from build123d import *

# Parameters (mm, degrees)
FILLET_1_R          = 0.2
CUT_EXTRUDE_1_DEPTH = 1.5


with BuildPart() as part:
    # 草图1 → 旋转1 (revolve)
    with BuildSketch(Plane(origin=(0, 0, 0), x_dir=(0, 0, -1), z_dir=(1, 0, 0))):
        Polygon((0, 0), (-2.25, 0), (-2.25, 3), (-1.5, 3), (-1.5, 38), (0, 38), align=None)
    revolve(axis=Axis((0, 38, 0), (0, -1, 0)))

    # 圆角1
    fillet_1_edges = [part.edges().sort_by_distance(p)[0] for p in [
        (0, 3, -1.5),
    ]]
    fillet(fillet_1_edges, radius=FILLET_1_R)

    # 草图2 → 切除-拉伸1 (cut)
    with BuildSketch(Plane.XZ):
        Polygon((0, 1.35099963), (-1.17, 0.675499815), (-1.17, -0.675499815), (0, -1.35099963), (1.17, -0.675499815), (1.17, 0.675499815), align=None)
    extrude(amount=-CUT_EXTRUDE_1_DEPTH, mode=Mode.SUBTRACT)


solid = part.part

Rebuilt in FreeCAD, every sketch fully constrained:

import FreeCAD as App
import Part
import Sketcher

V = App.Vector
Q = App.Units.Quantity


def edges_at(feature, points):
    """Names of the edges that pass closest to the given points."""
    edges = feature.Shape.Edges
    near = lambda p: min(range(len(edges)), key=lambda i: edges[i].distToShape(Part.Vertex(*p))[0])
    return sorted({f"Edge{near(p) + 1}" for p in points})


def add_polygon(sketch, points):
    """Adds a closed chain of lines whose ends are joined by coincident constraints."""
    first, n = sketch.GeometryCount, len(points)
    for a, b in zip(points, points[1:] + points[:1]):
        sketch.addGeometry(Part.LineSegment(App.Vector(*a, 0), App.Vector(*b, 0)), False)
    for i in range(n):
        sketch.addConstraint(Sketcher.Constraint("Coincident", first + i, 2, first + (i + 1) % n, 1))

doc = App.newDocument("Part")
body = doc.addObject("PartDesign::Body", "Body")

# Sketch on YZ plane
sketch1 = body.newObject("Sketcher::SketchObject", "Sketch")
sketch1.AttachmentSupport = (doc.getObject("YZ_Plane"), [""])
sketch1.MapMode = "FlatFace"
add_polygon(sketch1, [(0, 2.2), (0, 0), (38, 0), (38, 1.5), (3, 1.5), (3, 2.2)])  # lines 0-5
sketch1.addConstraint([
    Sketcher.Constraint("Vertical", 0),
    Sketcher.Constraint("Horizontal", 1),
    Sketcher.Constraint("Vertical", 2),
    Sketcher.Constraint("Horizontal", 3),
    Sketcher.Constraint("Vertical", 4),
    Sketcher.Constraint("Horizontal", 5),
    Sketcher.Constraint("Coincident", 0, 2, -1, 1),
    Sketcher.Constraint("DistanceX", 1, 1, 1, 2, 38.0),
    Sketcher.Constraint("DistanceX", 3, 2, 3, 1, 35.0),
    Sketcher.Constraint("DistanceY", 2, 1, 2, 2, 1.5),
    Sketcher.Constraint("DistanceY", 0, 2, 0, 1, 2.25),
])
revolution = body.newObject("PartDesign::Revolution", "Revolution")
revolution.Profile = sketch1
revolution.ReferenceAxis = (sketch1, ["H_Axis"])
revolution.Angle = 360
doc.recompute()

fillet = body.newObject("PartDesign::Fillet", "Fillet")
fillet.Base = (revolution, edges_at(revolution, [(0, 3, -1.5)]))
fillet.Radius = 0.2

# Sketch on XZ plane
sketch2 = body.newObject("Sketcher::SketchObject", "Sketch001")
sketch2.AttachmentSupport = (doc.getObject("XZ_Plane"), [""])
sketch2.MapMode = "FlatFace"
add_polygon(sketch2, [(0, 1.4), (-1.2, 0.7), (-1.2, -0.7), (0, -1.4), (1.2, -0.7), (1.2, 0.7)])  # lines 0-5
sketch2.addConstraint([
    Sketcher.Constraint("Vertical", 1),
    Sketcher.Constraint("Vertical", 4),
    Sketcher.Constraint("Symmetric", 0, 2, 3, 2, -1, 1),
    Sketcher.Constraint("Symmetric", 2, 2, 5, 2, -1, 1),
    Sketcher.Constraint("PointOnObject", 2, 2, -2),
    Sketcher.Constraint("Parallel", 2, 5),
    Sketcher.Constraint("Horizontal", 1, 2, 3, 2),
    Sketcher.Constraint("Angle", 0, Q("-150 deg")),
    Sketcher.Constraint("DistanceY", 1, 2, 1, 1, 1.351),
    Sketcher.Constraint("DistanceX", 0, 2, -1, 1, 1.17),
])
pocket1 = body.newObject("PartDesign::Pocket", "Pocket")
pocket1.Profile = sketch2
pocket1.Length = 1.5

doc.recompute()
